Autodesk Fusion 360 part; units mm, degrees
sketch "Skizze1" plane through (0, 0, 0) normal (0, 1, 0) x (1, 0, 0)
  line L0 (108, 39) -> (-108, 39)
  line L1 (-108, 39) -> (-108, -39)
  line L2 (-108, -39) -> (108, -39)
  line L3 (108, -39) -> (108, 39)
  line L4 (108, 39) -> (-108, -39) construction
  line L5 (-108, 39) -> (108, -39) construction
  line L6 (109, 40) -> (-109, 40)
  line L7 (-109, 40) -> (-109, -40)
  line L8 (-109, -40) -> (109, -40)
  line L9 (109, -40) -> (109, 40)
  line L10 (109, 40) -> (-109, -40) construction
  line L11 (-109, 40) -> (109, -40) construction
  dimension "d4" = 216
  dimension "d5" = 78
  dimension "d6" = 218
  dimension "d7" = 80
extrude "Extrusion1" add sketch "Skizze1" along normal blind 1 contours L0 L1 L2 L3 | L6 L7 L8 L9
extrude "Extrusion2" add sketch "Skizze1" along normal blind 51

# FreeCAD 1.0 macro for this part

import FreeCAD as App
import Part
import Sketcher
from FreeCAD import Vector
Q = App.Units.Quantity


def add_polygon(sketch, points):
    """Adds a closed chain of lines whose ends are joined by coincident constraints."""
    first, n = sketch.GeometryCount, len(points)
    for a, b in zip(points, points[1:] + points[:1]):
        sketch.addGeometry(Part.LineSegment(App.Vector(*a, 0), App.Vector(*b, 0)), False)
    for i in range(n):
        sketch.addConstraint(Sketcher.Constraint("Coincident", first + i, 2, first + (i + 1) % n, 1))

doc = App.newDocument("Part")
body = doc.addObject("PartDesign::Body", "Body")

# Sketch on XZ plane
sketch1 = body.newObject("Sketcher::SketchObject", "Sketch")
sketch1.AttachmentSupport = (doc.getObject("XZ_Plane"), [""])
sketch1.MapMode = "FlatFace"
add_polygon(sketch1, [(109, 40), (109, -40), (-109, -40), (-109, 40)])  # lines 0-3
sketch1.addConstraint(Sketcher.Constraint("Vertical", 0))
sketch1.addConstraint(Sketcher.Constraint("Horizontal", 1))
sketch1.addConstraint(Sketcher.Constraint("Vertical", 2))
sketch1.addConstraint(Sketcher.Constraint("Horizontal", 3))
sketch1.addConstraint(Sketcher.Constraint("Symmetric", 0, 2, 2, 2, -1, 1))
sketch1.addConstraint(Sketcher.Constraint("DistanceX", 1, 2, 1, 1, Q("218 mm")))
sketch1.addConstraint(Sketcher.Constraint("DistanceY", 0, 2, 0, 1, Q("80 mm")))
pad1 = body.newObject("PartDesign::Pad", "Pad")
pad1.Profile = sketch1
pad1.Length = 1
pad1.Reversed = True

# Sketch on XZ plane
sketch2 = body.newObject("Sketcher::SketchObject", "Sketch001")
sketch2.AttachmentSupport = (doc.getObject("XZ_Plane"), [""])
sketch2.MapMode = "FlatFace"
add_polygon(sketch2, [(109, 40), (109, -40), (-109, -40), (-109, 40)])  # lines 0-3
add_polygon(sketch2, [(-108, -39), (108, -39), (108, 39), (-108, 39)])  # lines 4-7
sketch2.addConstraint(Sketcher.Constraint("Vertical", 0))
sketch2.addConstraint(Sketcher.Constraint("Horizontal", 1))
sketch2.addConstraint(Sketcher.Constraint("Vertical", 2))
sketch2.addConstraint(Sketcher.Constraint("Horizontal", 3))
sketch2.addConstraint(Sketcher.Constraint("Horizontal", 4))
sketch2.addConstraint(Sketcher.Constraint("Vertical", 5))
sketch2.addConstraint(Sketcher.Constraint("Horizontal", 6))
sketch2.addConstraint(Sketcher.Constraint("Vertical", 7))
sketch2.addConstraint(Sketcher.Constraint("Symmetric", 0, 2, 2, 2, -1, 1))
sketch2.addConstraint(Sketcher.Constraint("Symmetric", 4, 2, 6, 2, -1, 1))
sketch2.addConstraint(Sketcher.Constraint("DistanceX", 1, 2, 1, 1, Q("218 mm")))
sketch2.addConstraint(Sketcher.Constraint("DistanceX", 4, 1, 4, 2, Q("216 mm")))
sketch2.addConstraint(Sketcher.Constraint("DistanceY", 0, 2, 0, 1, Q("80 mm")))
sketch2.addConstraint(Sketcher.Constraint("DistanceY", 5, 1, 5, 2, Q("78 mm")))
pad2 = body.newObject("PartDesign::Pad", "Pad001")
pad2.Profile = sketch2
pad2.Length = 51
pad2.Reversed = True

doc.recompute()
